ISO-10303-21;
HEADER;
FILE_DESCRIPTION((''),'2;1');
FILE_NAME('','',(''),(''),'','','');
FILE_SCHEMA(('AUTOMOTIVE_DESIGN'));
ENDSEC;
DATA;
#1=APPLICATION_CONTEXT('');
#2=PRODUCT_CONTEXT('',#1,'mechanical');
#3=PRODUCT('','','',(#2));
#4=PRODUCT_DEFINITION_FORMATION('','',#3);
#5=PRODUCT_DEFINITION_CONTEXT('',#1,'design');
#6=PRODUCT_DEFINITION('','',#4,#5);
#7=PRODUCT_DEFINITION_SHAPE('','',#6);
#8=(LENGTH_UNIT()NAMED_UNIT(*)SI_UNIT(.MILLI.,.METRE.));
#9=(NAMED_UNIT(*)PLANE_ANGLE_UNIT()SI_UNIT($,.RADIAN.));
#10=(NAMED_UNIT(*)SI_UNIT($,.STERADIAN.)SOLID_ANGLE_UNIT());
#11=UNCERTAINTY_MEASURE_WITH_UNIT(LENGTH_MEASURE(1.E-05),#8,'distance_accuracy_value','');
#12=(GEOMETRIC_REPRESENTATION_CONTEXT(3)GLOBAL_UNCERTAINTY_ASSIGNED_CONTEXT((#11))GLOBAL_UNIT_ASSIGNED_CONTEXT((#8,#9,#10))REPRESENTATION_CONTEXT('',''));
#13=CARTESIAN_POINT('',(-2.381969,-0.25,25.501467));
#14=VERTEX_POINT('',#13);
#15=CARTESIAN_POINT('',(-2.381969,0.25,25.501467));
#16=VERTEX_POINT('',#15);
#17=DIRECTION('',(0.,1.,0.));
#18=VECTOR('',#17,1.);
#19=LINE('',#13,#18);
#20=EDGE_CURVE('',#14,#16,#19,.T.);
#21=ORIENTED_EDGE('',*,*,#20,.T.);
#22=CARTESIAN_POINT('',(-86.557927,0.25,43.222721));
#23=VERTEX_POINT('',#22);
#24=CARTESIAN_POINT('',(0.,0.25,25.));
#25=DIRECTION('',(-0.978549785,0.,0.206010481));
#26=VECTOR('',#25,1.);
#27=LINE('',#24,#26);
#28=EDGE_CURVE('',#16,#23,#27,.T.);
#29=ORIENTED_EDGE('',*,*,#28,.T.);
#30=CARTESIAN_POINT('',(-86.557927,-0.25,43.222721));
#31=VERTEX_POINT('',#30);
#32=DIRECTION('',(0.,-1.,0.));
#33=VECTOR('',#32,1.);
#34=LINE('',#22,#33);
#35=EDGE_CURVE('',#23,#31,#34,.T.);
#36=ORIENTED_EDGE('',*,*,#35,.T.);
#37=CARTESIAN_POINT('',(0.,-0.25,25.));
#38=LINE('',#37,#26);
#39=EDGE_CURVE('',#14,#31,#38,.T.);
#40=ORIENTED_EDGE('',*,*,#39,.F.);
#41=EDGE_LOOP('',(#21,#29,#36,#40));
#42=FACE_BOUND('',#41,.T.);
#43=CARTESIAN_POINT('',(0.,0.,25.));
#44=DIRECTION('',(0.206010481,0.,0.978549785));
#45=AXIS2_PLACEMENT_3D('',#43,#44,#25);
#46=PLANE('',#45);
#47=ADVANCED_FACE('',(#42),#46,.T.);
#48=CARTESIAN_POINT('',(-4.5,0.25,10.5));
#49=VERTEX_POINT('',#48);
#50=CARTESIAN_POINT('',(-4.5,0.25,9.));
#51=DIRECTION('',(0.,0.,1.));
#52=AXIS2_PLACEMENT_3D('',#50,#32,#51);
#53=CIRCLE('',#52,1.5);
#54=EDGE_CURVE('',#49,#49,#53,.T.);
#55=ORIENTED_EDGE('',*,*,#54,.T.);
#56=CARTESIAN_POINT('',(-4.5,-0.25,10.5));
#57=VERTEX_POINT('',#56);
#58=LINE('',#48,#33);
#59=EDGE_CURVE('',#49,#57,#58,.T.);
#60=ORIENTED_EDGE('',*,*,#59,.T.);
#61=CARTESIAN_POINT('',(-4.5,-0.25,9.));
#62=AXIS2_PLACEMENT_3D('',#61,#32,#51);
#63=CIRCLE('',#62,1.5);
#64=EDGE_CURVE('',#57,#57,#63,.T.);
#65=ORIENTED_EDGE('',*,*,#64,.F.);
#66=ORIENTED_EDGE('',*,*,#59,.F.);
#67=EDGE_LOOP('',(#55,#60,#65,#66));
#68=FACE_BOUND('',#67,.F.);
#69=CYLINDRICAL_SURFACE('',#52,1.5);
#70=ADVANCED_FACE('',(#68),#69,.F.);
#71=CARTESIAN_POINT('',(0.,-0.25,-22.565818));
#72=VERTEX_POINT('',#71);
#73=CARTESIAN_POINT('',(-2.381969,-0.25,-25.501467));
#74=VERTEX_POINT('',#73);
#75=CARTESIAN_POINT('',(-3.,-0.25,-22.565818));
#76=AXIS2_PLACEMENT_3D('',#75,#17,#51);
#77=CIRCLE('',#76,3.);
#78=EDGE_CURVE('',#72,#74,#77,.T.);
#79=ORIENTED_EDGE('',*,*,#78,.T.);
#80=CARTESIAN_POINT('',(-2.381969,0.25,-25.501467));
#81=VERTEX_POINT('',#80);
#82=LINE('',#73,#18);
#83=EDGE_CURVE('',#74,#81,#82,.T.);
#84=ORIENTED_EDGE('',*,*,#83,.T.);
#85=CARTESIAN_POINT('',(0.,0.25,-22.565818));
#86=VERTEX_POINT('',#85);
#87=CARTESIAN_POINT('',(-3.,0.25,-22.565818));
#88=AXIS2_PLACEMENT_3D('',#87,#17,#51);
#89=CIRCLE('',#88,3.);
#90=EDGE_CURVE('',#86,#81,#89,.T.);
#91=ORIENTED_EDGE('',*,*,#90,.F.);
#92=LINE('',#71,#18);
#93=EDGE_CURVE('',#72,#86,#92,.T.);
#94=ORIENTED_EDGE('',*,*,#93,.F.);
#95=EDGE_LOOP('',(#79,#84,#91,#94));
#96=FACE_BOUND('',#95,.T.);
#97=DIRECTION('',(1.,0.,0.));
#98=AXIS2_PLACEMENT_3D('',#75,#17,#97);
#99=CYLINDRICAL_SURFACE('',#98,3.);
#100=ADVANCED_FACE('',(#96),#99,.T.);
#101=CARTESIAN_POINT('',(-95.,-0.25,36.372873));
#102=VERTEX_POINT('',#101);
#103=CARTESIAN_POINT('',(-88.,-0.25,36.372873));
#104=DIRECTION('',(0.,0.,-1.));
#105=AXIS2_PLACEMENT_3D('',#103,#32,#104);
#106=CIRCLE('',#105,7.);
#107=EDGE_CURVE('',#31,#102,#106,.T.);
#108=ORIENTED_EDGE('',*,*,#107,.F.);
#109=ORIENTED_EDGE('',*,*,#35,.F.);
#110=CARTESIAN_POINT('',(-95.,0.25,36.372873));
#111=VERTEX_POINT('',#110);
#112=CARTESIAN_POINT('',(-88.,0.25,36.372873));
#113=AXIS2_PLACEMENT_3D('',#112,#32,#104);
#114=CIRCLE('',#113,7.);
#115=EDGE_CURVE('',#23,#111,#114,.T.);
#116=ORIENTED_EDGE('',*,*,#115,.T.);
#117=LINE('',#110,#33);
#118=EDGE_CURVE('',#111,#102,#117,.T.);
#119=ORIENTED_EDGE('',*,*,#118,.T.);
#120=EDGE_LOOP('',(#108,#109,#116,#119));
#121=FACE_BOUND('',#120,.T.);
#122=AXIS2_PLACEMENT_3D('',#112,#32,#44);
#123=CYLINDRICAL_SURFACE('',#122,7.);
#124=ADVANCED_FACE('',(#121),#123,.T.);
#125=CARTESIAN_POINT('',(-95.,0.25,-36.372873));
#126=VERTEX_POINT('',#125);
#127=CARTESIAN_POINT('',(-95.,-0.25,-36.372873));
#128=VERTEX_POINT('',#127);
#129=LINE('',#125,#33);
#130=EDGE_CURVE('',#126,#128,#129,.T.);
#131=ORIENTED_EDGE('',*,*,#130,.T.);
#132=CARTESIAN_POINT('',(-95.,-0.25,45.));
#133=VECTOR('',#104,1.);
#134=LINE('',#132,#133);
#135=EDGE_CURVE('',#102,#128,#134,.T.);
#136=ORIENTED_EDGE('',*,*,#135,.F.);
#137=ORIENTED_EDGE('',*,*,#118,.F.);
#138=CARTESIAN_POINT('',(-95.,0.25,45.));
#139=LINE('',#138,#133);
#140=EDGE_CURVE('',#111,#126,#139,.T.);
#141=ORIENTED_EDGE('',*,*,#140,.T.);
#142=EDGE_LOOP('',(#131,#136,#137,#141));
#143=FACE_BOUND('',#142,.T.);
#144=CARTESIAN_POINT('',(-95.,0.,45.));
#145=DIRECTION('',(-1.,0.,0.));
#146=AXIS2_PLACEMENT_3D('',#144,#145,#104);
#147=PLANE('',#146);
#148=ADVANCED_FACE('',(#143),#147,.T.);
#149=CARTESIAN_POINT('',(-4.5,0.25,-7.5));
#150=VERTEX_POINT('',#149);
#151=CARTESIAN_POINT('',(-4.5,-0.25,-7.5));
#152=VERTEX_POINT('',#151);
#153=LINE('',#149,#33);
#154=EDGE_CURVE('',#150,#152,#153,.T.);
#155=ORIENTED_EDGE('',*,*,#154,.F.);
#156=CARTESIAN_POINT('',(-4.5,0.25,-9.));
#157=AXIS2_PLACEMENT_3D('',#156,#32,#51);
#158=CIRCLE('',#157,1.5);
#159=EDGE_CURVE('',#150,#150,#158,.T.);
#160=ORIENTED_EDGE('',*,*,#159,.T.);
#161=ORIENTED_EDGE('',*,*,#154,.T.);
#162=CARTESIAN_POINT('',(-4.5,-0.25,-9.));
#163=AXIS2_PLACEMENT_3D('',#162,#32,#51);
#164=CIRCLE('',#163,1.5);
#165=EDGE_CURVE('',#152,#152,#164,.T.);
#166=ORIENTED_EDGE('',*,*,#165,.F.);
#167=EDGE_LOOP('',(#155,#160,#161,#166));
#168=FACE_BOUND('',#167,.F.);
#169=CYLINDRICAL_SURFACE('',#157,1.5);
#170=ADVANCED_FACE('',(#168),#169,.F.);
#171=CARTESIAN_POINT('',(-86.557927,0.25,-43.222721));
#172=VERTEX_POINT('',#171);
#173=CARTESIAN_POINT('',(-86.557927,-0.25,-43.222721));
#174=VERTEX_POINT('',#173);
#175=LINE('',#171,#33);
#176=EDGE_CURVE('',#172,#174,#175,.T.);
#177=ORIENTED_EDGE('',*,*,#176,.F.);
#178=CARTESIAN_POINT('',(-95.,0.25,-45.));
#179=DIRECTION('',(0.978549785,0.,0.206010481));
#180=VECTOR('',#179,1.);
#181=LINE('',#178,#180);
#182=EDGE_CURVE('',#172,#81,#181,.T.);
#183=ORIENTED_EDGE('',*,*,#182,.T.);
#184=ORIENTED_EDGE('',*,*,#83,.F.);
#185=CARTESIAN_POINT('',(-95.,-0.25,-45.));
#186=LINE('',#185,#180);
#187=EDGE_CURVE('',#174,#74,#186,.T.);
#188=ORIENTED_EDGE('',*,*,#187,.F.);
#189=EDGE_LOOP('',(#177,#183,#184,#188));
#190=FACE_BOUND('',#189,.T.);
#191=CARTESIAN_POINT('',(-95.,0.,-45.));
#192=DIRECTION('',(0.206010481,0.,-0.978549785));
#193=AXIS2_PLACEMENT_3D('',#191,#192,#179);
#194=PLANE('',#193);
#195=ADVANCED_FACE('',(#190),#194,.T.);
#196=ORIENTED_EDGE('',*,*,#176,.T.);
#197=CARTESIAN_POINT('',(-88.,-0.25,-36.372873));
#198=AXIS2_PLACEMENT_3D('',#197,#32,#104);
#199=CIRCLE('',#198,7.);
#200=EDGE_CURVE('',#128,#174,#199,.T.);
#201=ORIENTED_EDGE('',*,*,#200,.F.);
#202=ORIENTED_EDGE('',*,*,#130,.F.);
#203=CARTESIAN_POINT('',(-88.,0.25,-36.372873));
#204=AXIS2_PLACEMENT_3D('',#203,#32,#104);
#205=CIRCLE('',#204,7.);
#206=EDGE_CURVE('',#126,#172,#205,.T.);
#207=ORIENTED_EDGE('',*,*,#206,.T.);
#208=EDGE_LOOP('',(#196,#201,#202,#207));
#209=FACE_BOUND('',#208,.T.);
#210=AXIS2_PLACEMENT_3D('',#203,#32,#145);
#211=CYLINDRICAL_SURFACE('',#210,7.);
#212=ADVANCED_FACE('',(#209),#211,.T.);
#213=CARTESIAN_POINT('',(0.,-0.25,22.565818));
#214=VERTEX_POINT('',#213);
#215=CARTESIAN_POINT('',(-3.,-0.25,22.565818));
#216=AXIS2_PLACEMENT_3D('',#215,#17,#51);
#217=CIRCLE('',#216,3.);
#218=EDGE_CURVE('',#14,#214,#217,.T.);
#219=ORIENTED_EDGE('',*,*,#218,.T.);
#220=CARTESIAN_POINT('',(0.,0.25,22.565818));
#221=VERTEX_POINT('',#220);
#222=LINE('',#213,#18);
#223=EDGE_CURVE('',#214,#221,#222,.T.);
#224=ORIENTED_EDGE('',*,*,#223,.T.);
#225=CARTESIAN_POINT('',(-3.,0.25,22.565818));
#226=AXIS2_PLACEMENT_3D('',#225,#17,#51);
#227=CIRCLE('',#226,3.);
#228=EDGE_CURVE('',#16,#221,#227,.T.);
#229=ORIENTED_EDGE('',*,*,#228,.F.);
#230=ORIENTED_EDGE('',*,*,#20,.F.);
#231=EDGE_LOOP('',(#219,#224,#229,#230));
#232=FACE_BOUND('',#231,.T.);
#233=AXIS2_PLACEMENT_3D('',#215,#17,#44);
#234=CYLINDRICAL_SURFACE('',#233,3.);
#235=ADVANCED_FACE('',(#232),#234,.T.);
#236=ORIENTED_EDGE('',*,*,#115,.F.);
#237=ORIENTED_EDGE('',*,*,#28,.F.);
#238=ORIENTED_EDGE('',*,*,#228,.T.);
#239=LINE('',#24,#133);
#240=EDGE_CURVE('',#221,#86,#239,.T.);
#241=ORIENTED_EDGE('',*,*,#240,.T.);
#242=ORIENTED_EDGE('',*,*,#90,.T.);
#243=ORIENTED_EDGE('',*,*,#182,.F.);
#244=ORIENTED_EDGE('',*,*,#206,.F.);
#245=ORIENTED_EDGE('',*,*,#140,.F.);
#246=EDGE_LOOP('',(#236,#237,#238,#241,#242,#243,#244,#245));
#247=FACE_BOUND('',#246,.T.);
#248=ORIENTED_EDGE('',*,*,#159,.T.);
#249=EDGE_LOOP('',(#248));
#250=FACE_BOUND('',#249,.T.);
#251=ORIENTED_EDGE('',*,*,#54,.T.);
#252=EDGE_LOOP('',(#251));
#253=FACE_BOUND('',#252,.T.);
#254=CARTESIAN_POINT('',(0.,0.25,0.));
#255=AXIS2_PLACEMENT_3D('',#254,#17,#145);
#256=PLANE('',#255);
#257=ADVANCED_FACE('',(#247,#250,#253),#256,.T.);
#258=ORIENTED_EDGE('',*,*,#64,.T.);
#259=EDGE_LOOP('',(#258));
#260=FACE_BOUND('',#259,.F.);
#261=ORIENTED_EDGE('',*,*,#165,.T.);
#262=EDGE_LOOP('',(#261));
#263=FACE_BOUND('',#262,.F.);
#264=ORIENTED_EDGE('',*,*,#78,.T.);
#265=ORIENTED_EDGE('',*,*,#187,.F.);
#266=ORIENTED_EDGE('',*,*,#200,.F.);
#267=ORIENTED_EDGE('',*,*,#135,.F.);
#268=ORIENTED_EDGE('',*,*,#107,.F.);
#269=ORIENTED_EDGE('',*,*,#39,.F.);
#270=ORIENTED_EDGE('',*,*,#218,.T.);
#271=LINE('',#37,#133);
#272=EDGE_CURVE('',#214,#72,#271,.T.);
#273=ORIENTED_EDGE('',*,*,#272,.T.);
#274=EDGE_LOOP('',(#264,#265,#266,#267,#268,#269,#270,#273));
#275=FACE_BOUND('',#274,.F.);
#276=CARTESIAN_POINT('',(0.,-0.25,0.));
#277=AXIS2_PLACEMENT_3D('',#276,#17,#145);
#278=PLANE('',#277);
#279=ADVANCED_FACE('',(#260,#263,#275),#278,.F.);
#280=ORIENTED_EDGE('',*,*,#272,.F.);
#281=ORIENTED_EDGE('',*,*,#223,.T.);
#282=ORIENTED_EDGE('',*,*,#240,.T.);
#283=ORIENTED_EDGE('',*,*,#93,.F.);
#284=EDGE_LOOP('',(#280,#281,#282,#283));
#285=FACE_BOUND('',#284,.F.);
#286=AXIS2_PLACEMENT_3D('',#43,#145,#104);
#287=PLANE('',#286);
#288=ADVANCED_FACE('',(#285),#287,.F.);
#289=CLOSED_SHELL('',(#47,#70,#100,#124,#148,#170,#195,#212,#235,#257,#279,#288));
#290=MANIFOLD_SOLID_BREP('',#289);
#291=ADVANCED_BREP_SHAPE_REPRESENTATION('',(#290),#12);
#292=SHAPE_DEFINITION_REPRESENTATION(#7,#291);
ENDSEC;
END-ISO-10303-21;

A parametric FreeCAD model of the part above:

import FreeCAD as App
import Part
import Sketcher

V = App.Vector


def edges_at(feature, points):
    """Names of the edges that pass closest to the given points."""
    edges = feature.Shape.Edges
    near = lambda p: min(range(len(edges)), key=lambda i: edges[i].distToShape(Part.Vertex(*p))[0])
    return sorted({f"Edge{near(p) + 1}" for p in points})


def add_polygon(sketch, points):
    """Adds a closed chain of lines whose ends are joined by coincident constraints."""
    first, n = sketch.GeometryCount, len(points)
    for a, b in zip(points, points[1:] + points[:1]):
        sketch.addGeometry(Part.LineSegment(App.Vector(*a, 0), App.Vector(*b, 0)), False)
    for i in range(n):
        sketch.addConstraint(Sketcher.Constraint("Coincident", first + i, 2, first + (i + 1) % n, 1))

doc = App.newDocument("Part")
body = doc.addObject("PartDesign::Body", "Body")

# Sketch on XZ plane
sketch1 = body.newObject("Sketcher::SketchObject", "Sketch")
sketch1.AttachmentSupport = (doc.getObject("XZ_Plane"), [""])
sketch1.MapMode = "FlatFace"
add_polygon(sketch1, [(-95, 45), (0, 25), (0, -25), (-95, -45)])  # lines 0-3
sketch1.addConstraint(Sketcher.Constraint("Vertical", 1))
sketch1.addConstraint(Sketcher.Constraint("Vertical", 3))
sketch1.addConstraint(Sketcher.Constraint("Symmetric", 0, 2, 1, 2, -1, 1))
sketch1.addConstraint(Sketcher.Constraint("Equal", 0, 2))
sketch1.addConstraint(Sketcher.Constraint("DistanceY", 1, 2, 1, 1, 50.0))
sketch1.addConstraint(Sketcher.Constraint("DistanceY", 3, 1, 3, 2, 90.0))
sketch1.addConstraint(Sketcher.Constraint("DistanceX", 2, 2, -1, 1, 95.0))
pad1 = body.newObject("PartDesign::Pad", "Pad")
pad1.Profile = sketch1
pad1.Length = 0.5
pad1.Midplane = True

# Sketch on XZ plane
sketch2 = body.newObject("Sketcher::SketchObject", "Sketch001")
sketch2.AttachmentSupport = (doc.getObject("XZ_Plane"), [""])
sketch2.MapMode = "FlatFace"
sketch2.AttachmentOffset = App.Placement(V(0, 0, -0.25), App.Rotation())
sketch2.addGeometry(Part.Circle(V(-4.5, 9, 0), V(0, 0, 1), 1.5), False)
sketch2.addGeometry(Part.Circle(V(-4.5, -9, 0), V(0, 0, 1), 1.5), False)
sketch2.addConstraint(Sketcher.Constraint("Equal", 0, 1))
sketch2.addConstraint(Sketcher.Constraint("Symmetric", 0, 3, 1, 3, -1))
sketch2.addConstraint(Sketcher.Constraint("Diameter", 0, 3.0))
sketch2.addConstraint(Sketcher.Constraint("DistanceY", -1, 1, 0, 3, 9.0))
sketch2.addConstraint(Sketcher.Constraint("DistanceX", 0, 3, -1, 1, 4.5))
doc.recompute()
hole = body.newObject("PartDesign::Hole", "Hole")
hole.Profile = sketch2
hole.ThreadType = "None"
hole.Diameter = 3
hole.DepthType = "ThroughAll"
hole.Reversed = True
doc.recompute()

fillet = body.newObject("PartDesign::Fillet", "Fillet")
fillet.Base = (hole, edges_at(hole, [(-95, 0, -45), (-95, 0, 45)]))
fillet.Radius = 7
doc.recompute()

fillet2 = body.newObject("PartDesign::Fillet", "Fillet001")
fillet2.Base = (fillet, edges_at(fillet, [(0, 0, -25), (0, 0, 25)]))
fillet2.Radius = 3

doc.recompute()
